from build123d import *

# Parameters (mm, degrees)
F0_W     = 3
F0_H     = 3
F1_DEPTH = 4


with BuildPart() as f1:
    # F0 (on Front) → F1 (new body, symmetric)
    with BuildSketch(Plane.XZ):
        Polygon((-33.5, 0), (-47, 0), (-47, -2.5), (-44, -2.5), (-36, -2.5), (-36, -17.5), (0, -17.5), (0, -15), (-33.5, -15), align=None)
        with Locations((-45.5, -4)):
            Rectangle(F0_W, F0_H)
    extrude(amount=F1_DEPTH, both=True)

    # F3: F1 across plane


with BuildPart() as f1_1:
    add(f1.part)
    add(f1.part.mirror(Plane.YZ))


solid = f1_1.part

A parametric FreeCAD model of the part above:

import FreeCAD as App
import Part
import Sketcher

V = App.Vector
Q = App.Units.Quantity


def add_polygon(sketch, points):
    """Adds a closed chain of lines whose ends are joined by coincident constraints."""
    first, n = sketch.GeometryCount, len(points)
    for a, b in zip(points, points[1:] + points[:1]):
        sketch.addGeometry(Part.LineSegment(App.Vector(*a, 0), App.Vector(*b, 0)), False)
    for i in range(n):
        sketch.addConstraint(Sketcher.Constraint("Coincident", first + i, 2, first + (i + 1) % n, 1))

doc = App.newDocument("Part")
params = doc.addObject("Spreadsheet::Sheet", "Params")
for row, (alias, value) in enumerate([
    ("sketch1_width", "3 mm"),
    ("sketch1_width2", "8 mm"),
    ("sketch1_width3", "36 mm"),
    ("sketch1_height", "15 mm"),
    ("sketch1_width4", "13.5 mm"),
    ("pad1_length", "8 mm"),
], start=1):
    params.set(f"A{row}", alias)
    params.set(f"B{row}", "=" + value)
    params.setAlias(f"B{row}", alias)

body = doc.addObject("PartDesign::Body", "Body")

sketch1 = body.newObject("Sketcher::SketchObject", "Sketch")
sketch1.AttachmentSupport = (doc.getObject("XZ_Plane"), [""])
sketch1.MapMode = "FlatFace"
add_polygon(sketch1, [(-33.5, 0), (-47, 0), (-47, -5.5), (-44, -5.5), (-44, -2.5), (-36, -2.5), (-36, -17.5), (0, -17.5), (0, -15), (-33.5, -15)])
sketch1.addConstraint([
    Sketcher.Constraint("Horizontal", 0),
    Sketcher.Constraint("Vertical", 1),
    Sketcher.Constraint("Horizontal", 2),
    Sketcher.Constraint("Vertical", 3),
    Sketcher.Constraint("Horizontal", 4),
    Sketcher.Constraint("Vertical", 5),
    Sketcher.Constraint("Horizontal", 6),
    Sketcher.Constraint("Vertical", 7),
    Sketcher.Constraint("Horizontal", 8),
    Sketcher.Constraint("Vertical", 9),
    Sketcher.Constraint("PointOnObject", 0, 2, -1),
    Sketcher.Constraint("PointOnObject", 6, 2, -2),
    Sketcher.Constraint("Equal", 2, 3),
    Sketcher.Constraint("Equal", 5, 9),
    Sketcher.Constraint("DistanceX", 2, 1, 2, 2, Q("3 mm")),
    Sketcher.Constraint("DistanceX", 4, 1, 4, 2, Q("8 mm")),
    Sketcher.Constraint("DistanceX", 6, 1, 6, 2, Q("36 mm")),
    Sketcher.Constraint("DistanceY", 5, 2, 5, 1, Q("15 mm")),
    Sketcher.Constraint("DistanceX", 0, 2, 0, 1, Q("13.5 mm")),
    Sketcher.Constraint("DistanceY", 1, 2, 1, 1, Q("5.5 mm")),
])
sketch1.setExpression("Constraints[24]", "Params.sketch1_width")
sketch1.setExpression("Constraints[25]", "Params.sketch1_width2")
sketch1.setExpression("Constraints[26]", "Params.sketch1_width3")
sketch1.setExpression("Constraints[27]", "Params.sketch1_height")
sketch1.setExpression("Constraints[28]", "Params.sketch1_width4")
pad1 = body.newObject("PartDesign::Pad", "Pad")
pad1.Profile = sketch1
pad1.setExpression("Length", "Params.pad1_length")
pad1.Midplane = True
body2 = doc.addObject("PartDesign::Body", "Body001")
doc.recompute()

body2.BaseFeature = body
doc.recompute()

mirroring = doc.addObject("Part::Mirroring", "Mirroring")
mirroring.Source = body
mirroring.Base = V(0, 0, 0)
mirroring.Normal = V(1, 0, 0)
body3 = doc.addObject("PartDesign::Body", "Body002")
body3.BaseFeature = mirroring
boolean = body2.newObject("PartDesign::Boolean", "Boolean")
boolean.Type = "Fuse"
boolean.addObjects([body3])
doc.recompute()
mirroring.Visibility = False

doc.recompute()
